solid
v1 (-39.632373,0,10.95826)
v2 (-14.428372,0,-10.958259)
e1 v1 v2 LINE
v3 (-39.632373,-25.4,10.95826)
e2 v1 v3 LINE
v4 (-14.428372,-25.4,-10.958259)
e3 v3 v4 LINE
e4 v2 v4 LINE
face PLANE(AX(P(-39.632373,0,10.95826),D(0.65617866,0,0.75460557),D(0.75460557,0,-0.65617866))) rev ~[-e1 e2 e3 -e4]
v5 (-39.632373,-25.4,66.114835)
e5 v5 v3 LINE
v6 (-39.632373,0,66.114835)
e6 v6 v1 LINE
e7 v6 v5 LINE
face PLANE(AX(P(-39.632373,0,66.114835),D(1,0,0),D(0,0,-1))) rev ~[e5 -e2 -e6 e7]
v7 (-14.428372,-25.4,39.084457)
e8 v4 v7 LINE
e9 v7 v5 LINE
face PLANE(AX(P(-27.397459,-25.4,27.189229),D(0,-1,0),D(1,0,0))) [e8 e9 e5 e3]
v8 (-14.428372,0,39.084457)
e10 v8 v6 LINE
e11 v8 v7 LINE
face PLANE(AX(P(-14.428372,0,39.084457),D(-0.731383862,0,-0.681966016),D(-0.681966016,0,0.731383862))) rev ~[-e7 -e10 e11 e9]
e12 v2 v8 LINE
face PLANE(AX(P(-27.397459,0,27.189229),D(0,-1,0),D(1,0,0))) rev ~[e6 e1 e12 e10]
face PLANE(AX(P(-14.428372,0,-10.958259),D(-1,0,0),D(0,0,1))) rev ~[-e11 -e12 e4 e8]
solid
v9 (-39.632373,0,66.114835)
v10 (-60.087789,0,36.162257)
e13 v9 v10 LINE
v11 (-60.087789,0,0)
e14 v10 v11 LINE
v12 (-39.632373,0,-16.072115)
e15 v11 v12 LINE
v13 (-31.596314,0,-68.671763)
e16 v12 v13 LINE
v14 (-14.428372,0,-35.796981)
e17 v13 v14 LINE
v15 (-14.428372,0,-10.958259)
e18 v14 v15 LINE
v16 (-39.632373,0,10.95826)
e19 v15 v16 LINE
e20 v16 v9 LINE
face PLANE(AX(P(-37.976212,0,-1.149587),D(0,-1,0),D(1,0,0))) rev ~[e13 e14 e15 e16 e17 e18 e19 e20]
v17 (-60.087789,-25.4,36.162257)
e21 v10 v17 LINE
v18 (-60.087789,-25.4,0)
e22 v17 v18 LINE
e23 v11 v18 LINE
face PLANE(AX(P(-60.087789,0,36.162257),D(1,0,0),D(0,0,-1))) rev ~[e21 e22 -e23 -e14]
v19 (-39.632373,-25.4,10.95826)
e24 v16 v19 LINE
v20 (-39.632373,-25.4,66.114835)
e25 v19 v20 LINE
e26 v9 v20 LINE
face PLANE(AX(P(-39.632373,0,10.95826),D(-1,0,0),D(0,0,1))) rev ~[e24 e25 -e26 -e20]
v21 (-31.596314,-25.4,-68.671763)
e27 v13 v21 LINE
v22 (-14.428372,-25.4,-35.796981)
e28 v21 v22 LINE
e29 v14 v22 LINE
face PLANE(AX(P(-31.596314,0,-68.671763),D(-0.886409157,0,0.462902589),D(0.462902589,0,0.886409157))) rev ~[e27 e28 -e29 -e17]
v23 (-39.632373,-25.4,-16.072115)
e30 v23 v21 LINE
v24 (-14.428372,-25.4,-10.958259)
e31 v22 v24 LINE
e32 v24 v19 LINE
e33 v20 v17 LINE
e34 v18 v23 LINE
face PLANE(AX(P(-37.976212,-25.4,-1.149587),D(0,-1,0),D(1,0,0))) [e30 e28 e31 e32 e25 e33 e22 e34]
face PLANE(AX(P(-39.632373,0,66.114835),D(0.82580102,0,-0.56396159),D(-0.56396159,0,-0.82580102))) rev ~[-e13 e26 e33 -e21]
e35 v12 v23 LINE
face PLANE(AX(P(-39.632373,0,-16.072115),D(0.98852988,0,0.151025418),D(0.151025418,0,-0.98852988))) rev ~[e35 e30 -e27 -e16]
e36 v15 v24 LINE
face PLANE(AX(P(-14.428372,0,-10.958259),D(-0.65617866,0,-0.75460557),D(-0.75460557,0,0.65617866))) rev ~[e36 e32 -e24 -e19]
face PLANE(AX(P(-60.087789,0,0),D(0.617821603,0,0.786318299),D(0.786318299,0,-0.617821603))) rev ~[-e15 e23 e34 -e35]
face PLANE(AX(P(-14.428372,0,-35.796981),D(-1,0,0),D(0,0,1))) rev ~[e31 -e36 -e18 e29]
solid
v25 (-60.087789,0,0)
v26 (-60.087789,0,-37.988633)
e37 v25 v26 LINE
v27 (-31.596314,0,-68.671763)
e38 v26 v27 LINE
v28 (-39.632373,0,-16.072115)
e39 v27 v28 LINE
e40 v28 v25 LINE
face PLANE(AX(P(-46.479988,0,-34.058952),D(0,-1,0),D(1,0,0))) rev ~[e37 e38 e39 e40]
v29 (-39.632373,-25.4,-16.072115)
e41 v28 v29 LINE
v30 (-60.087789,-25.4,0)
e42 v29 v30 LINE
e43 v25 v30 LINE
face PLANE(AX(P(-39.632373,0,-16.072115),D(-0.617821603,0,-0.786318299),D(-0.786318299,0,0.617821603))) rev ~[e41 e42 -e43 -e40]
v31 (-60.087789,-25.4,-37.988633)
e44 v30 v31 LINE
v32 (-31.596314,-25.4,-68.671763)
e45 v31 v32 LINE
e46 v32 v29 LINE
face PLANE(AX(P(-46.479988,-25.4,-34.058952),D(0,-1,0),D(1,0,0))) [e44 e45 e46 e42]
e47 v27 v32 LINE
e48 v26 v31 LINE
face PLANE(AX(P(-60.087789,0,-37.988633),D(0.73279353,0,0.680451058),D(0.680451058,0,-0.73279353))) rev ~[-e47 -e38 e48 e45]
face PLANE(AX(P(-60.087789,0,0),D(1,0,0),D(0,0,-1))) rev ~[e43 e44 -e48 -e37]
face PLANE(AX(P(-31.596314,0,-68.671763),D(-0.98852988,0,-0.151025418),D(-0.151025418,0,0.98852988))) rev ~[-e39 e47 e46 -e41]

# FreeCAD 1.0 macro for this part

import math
import FreeCAD as App
import Part
import Sketcher
from FreeCAD import Vector
Q = App.Units.Quantity

doc = App.newDocument("Part")
body = doc.addObject("PartDesign::Body", "Body")

# Sketch on XZ plane
sketch1 = doc.addObject("Sketcher::SketchObject", "Sketch")
body.addObject(sketch1)
sketch1.AttachmentSupport = (doc.XZ_Plane, [""])
sketch1.MapMode = "FlatFace"
sketch1.addGeometry(Part.ArcOfCircle(Part.Circle(Vector(-120.559797, 24.265537, 0), Vector(0, 0, 1), 17.211854), math.radians(117.00488), math.radians(360)), False)
sketch1.addGeometry(Part.ArcOfCircle(Part.Circle(Vector(-120.559797, 24.265537, 0), Vector(0, 0, 1), 17.211854), math.radians(0), math.radians(49.615151)), False)
sketch1.addGeometry(Part.LineSegment(Vector(-109.407918, 37.375972, 0), Vector(-106.427882, 143.807524, 0)), False)
sketch1.addGeometry(Part.ArcOfCircle(Part.Circle(Vector(-115.627781, 161.331117, 0), Vector(0, 0, 1), 19.791777), math.radians(-62.300495), math.radians(0)), False)
sketch1.addGeometry(Part.ArcOfCircle(Part.Circle(Vector(-115.627781, 161.331117, 0), Vector(0, 0, 1), 19.791777), math.radians(0), math.radians(243.630113)), False)
sketch1.addGeometry(Part.LineSegment(Vector(-124.418583, 143.598767, 0), Vector(-128.375121, 39.600745, 0)), False)
sketch1.addConstraint(Sketcher.Constraint("Tangent", 0, 2, 1, 1))
sketch1.addConstraint(Sketcher.Constraint("Coincident", 1, 2, 2, 1))
sketch1.addConstraint(Sketcher.Constraint("Coincident", 2, 2, 3, 1))
sketch1.addConstraint(Sketcher.Constraint("Tangent", 3, 2, 4, 1))
sketch1.addConstraint(Sketcher.Constraint("Coincident", 4, 2, 5, 1))
sketch1.addConstraint(Sketcher.Constraint("Coincident", 5, 2, 0, 1))
sketch1.addConstraint(Sketcher.Constraint("Equal", 0, 1))
sketch1.addConstraint(Sketcher.Constraint("Equal", 3, 4))
sketch1.addConstraint(Sketcher.Constraint("Horizontal", 1, 3, 0, 2))
sketch1.addConstraint(Sketcher.Constraint("Horizontal", 4, 3, 3, 2))
sketch1.addConstraint(Sketcher.Constraint("Radius", 0, 17.211854))
sketch1.addConstraint(Sketcher.Constraint("Radius", 3, 19.791777))
sketch1.addConstraint(Sketcher.Constraint("DistanceX", 3, 3, 2, 2, 9.199899))
sketch1.addConstraint(Sketcher.Constraint("DistanceX", 4, 2, 2, 2, 17.990701))
sketch1.addConstraint(Sketcher.Constraint("DistanceX", 3, 3, -1, 1, 115.627781))
sketch1.addConstraint(Sketcher.Constraint("DistanceX", 1, 2, -1, 1, 109.407918))
sketch1.addConstraint(Sketcher.Constraint("DistanceX", 5, 2, -1, 1, 128.375121))
sketch1.addConstraint(Sketcher.Constraint("DistanceY", 0, 3, 3, 3, 137.06558))
sketch1.addConstraint(Sketcher.Constraint("DistanceX", 0, 3, 1, 2, 11.151878))
sketch1.addConstraint(Sketcher.Constraint("DistanceY", -1, 1, 0, 3, 24.265537))
pad1 = doc.addObject("PartDesign::Pad", "Pad")
body.addObject(pad1)
pad1.Profile = sketch1
pad1.Length = Q("1 in")

# Sketch on XZ plane
sketch2 = doc.addObject("Sketcher::SketchObject", "Sketch001")
body.addObject(sketch2)
sketch2.AttachmentSupport = (doc.XZ_Plane, [""])
sketch2.MapMode = "FlatFace"
sketch2.addGeometry(Part.Circle(Vector(-119.413547, 24.935341, 0), Vector(0, 0, 1), 3.175), False)
sketch2.addConstraint(Sketcher.Constraint("Diameter", 0, Q("0.25 in")))
sketch2.addConstraint(Sketcher.Constraint("DistanceY", -1, 1, 0, 3, 24.935341))
sketch2.addConstraint(Sketcher.Constraint("DistanceX", 0, 3, -1, 1, 119.413547))
doc.recompute()
hole = doc.addObject("PartDesign::Hole", "Hole")
body.addObject(hole)
hole.Profile = sketch2
hole.ThreadType = "None"
hole.Diameter = Q("0.25 in")
hole.DepthType = "ThroughAll"
hole.Reversed = True

# Sketch on XZ plane
sketch3 = doc.addObject("Sketcher::SketchObject", "Sketch002")
body.addObject(sketch3)
sketch3.AttachmentSupport = (doc.XZ_Plane, [""])
sketch3.MapMode = "FlatFace"
sketch3.addGeometry(Part.Circle(Vector(-114.640572, 176.645262, 0), Vector(0, 0, 1), 3.175), False)
sketch3.addConstraint(Sketcher.Constraint("Diameter", 0, Q("0.25 in")))
sketch3.addConstraint(Sketcher.Constraint("DistanceX", 0, 3, -1, 1, 114.640572))
sketch3.addConstraint(Sketcher.Constraint("DistanceY", -1, 1, 0, 3, 176.645262))
doc.recompute()
hole2 = doc.addObject("PartDesign::Hole", "Hole001")
body.addObject(hole2)
hole2.Profile = sketch3
hole2.ThreadType = "None"
hole2.Diameter = Q("0.25 in")
hole2.DepthType = "ThroughAll"
hole2.Reversed = True
body2 = doc.addObject("PartDesign::Body", "Body001")

# Sketch on XZ plane
sketch4 = doc.addObject("Sketcher::SketchObject", "Sketch003")
body2.addObject(sketch4)
sketch4.AttachmentSupport = (doc.getObject("XZ_Plane001"), [""])
sketch4.MapMode = "FlatFace"
sketch4.addGeometry(Part.LineSegment(Vector(-14.428372, -10.958259, 0), Vector(-39.632373, 10.95826, 0)), False)
sketch4.addGeometry(Part.LineSegment(Vector(-39.632373, 10.95826, 0), Vector(-39.632373, 66.114835, 0)), False)
sketch4.addGeometry(Part.LineSegment(Vector(-39.632373, 66.114835, 0), Vector(-60.087789, 36.162257, 0)), False)
sketch4.addGeometry(Part.LineSegment(Vector(-60.087789, 36.162257, 0), Vector(-60.087789, 0, 0)), False)
sketch4.addGeometry(Part.LineSegment(Vector(-60.087789, 0, 0), Vector(-39.632373, -16.072115, 0)), False)
sketch4.addGeometry(Part.LineSegment(Vector(-39.632373, -16.072115, 0), Vector(-31.596314, -68.671763, 0)), False)
sketch4.addGeometry(Part.LineSegment(Vector(-31.596314, -68.671763, 0), Vector(-14.428372, -35.796981, 0)), False)
sketch4.addGeometry(Part.LineSegment(Vector(-14.428372, -35.796981, 0), Vector(-14.428372, -10.958259, 0)), False)
sketch4.addConstraint(Sketcher.Constraint("Coincident", 0, 2, 1, 1))
sketch4.addConstraint(Sketcher.Constraint("Coincident", 1, 2, 2, 1))
sketch4.addConstraint(Sketcher.Constraint("Coincident", 2, 2, 3, 1))
sketch4.addConstraint(Sketcher.Constraint("Coincident", 3, 2, 4, 1))
sketch4.addConstraint(Sketcher.Constraint("Coincident", 4, 2, 5, 1))
sketch4.addConstraint(Sketcher.Constraint("Coincident", 5, 2, 6, 1))
sketch4.addConstraint(Sketcher.Constraint("Coincident", 6, 2, 7, 1))
sketch4.addConstraint(Sketcher.Constraint("Coincident", 7, 2, 0, 1))
sketch4.addConstraint(Sketcher.Constraint("Vertical", 1))
sketch4.addConstraint(Sketcher.Constraint("Vertical", 3))
sketch4.addConstraint(Sketcher.Constraint("Vertical", 7))
sketch4.addConstraint(Sketcher.Constraint("PointOnObject", 3, 2, -1))
sketch4.addConstraint(Sketcher.Constraint("Vertical", 1, 2, 4, 2))
sketch4.addConstraint(Sketcher.Constraint("DistanceY", 7, 1, 7, 2, 24.838722))
sketch4.addConstraint(Sketcher.Constraint("DistanceY", 5, 2, 1, 2, 134.786598))
sketch4.addConstraint(Sketcher.Constraint("DistanceX", 4, 2, 6, 2, 25.204001))
sketch4.addConstraint(Sketcher.Constraint("Distance", 0, 33.400232))
sketch4.addConstraint(Sketcher.Constraint("Distance", 2, 36.270939))
sketch4.addConstraint(Sketcher.Constraint("DistanceY", 1, 1, 1, 2, 55.156576))
sketch4.addConstraint(Sketcher.Constraint("DistanceY", 3, 2, 3, 1, 36.162257))
sketch4.addConstraint(Sketcher.Constraint("DistanceY", -1, 1, 0, 2, 10.95826))
sketch4.addConstraint(Sketcher.Constraint("DistanceX", 2, 2, -1, 1, 60.087789))
sketch4.addConstraint(Sketcher.Constraint("DistanceY", 4, 2, 1, 2, 82.18695))
sketch4.addConstraint(Sketcher.Constraint("DistanceX", 4, 2, 5, 2, 8.036058))
pad2 = doc.addObject("PartDesign::Pad", "Pad001")
body2.addObject(pad2)
pad2.Profile = sketch4
pad2.Length = Q("1 in")
body3 = doc.addObject("PartDesign::Body", "Body002")

# Sketch on XZ plane
sketch5 = doc.addObject("Sketcher::SketchObject", "Sketch004")
body3.addObject(sketch5)
sketch5.AttachmentSupport = (doc.getObject("XZ_Plane002"), [""])
sketch5.MapMode = "FlatFace"
sketch5.addGeometry(Part.LineSegment(Vector(-14.428372, 39.084457, 0), Vector(-39.632373, 66.114835, 0)), False)
sketch5.addGeometry(Part.LineSegment(Vector(-39.632373, 66.114835, 0), Vector(-39.632373, 10.95826, 0)), False)
sketch5.addGeometry(Part.LineSegment(Vector(-39.632373, 10.95826, 0), Vector(-14.428372, -10.958259, 0)), False)
sketch5.addGeometry(Part.LineSegment(Vector(-14.428372, -10.958259, 0), Vector(-14.428372, 39.084457, 0)), False)
sketch5.addConstraint(Sketcher.Constraint("Coincident", 0, 2, 1, 1))
sketch5.addConstraint(Sketcher.Constraint("Coincident", 1, 2, 2, 1))
sketch5.addConstraint(Sketcher.Constraint("Coincident", 2, 2, 3, 1))
sketch5.addConstraint(Sketcher.Constraint("Coincident", 3, 2, 0, 1))
sketch5.addConstraint(Sketcher.Constraint("Vertical", 1))
sketch5.addConstraint(Sketcher.Constraint("Vertical", 3))
sketch5.addConstraint(Sketcher.Constraint("DistanceX", 1, 2, 2, 2, 25.204001))
sketch5.addConstraint(Sketcher.Constraint("Distance", 2, 33.400232))
sketch5.addConstraint(Sketcher.Constraint("DistanceY", 1, 2, 1, 1, 55.156576))
sketch5.addConstraint(Sketcher.Constraint("DistanceY", 3, 1, 3, 2, 50.042716))
sketch5.addConstraint(Sketcher.Constraint("DistanceY", -1, 1, 1, 2, 10.95826))
sketch5.addConstraint(Sketcher.Constraint("DistanceX", 2, 2, -1, 1, 14.428372))
pad3 = doc.addObject("PartDesign::Pad", "Pad002")
body3.addObject(pad3)
pad3.Profile = sketch5
pad3.Length = Q("1 in")
body4 = doc.addObject("PartDesign::Body", "Body003")

# Sketch on XZ plane
sketch6 = doc.addObject("Sketcher::SketchObject", "Sketch005")
body4.addObject(sketch6)
sketch6.AttachmentSupport = (doc.getObject("XZ_Plane003"), [""])
sketch6.MapMode = "FlatFace"
sketch6.addGeometry(Part.LineSegment(Vector(-39.632373, -16.072115, 0), Vector(-60.087789, 0, 0)), False)
sketch6.addGeometry(Part.LineSegment(Vector(-60.087789, 0, 0), Vector(-60.087789, -37.988633, 0)), False)
sketch6.addGeometry(Part.LineSegment(Vector(-60.087789, -37.988633, 0), Vector(-31.596314, -68.671763, 0)), False)
sketch6.addGeometry(Part.LineSegment(Vector(-31.596314, -68.671763, 0), Vector(-39.632373, -16.072115, 0)), False)
sketch6.addConstraint(Sketcher.Constraint("Coincident", 0, 2, 1, 1))
sketch6.addConstraint(Sketcher.Constraint("Coincident", 1, 2, 2, 1))
sketch6.addConstraint(Sketcher.Constraint("Coincident", 2, 2, 3, 1))
sketch6.addConstraint(Sketcher.Constraint("Coincident", 3, 2, 0, 1))
sketch6.addConstraint(Sketcher.Constraint("Vertical", 1))
sketch6.addConstraint(Sketcher.Constraint("PointOnObject", 0, 2, -1))
sketch6.addConstraint(Sketcher.Constraint("DistanceY", 1, 2, 1, 1, 37.988633))
sketch6.addConstraint(Sketcher.Constraint("DistanceX", 0, 2, -1, 1, 60.087789))
sketch6.addConstraint(Sketcher.Constraint("DistanceY", 2, 2, 1, 2, 30.68313))
sketch6.addConstraint(Sketcher.Constraint("DistanceX", 3, 2, 2, 2, 8.036058))
sketch6.addConstraint(Sketcher.Constraint("DistanceY", 2, 2, 3, 2, 52.599648))
sketch6.addConstraint(Sketcher.Constraint("Distance", 0, 26.014168))
pad4 = doc.addObject("PartDesign::Pad", "Pad003")
body4.addObject(pad4)
pad4.Profile = sketch6
pad4.Length = Q("1 in")
body.Visibility = False

doc.recompute()
